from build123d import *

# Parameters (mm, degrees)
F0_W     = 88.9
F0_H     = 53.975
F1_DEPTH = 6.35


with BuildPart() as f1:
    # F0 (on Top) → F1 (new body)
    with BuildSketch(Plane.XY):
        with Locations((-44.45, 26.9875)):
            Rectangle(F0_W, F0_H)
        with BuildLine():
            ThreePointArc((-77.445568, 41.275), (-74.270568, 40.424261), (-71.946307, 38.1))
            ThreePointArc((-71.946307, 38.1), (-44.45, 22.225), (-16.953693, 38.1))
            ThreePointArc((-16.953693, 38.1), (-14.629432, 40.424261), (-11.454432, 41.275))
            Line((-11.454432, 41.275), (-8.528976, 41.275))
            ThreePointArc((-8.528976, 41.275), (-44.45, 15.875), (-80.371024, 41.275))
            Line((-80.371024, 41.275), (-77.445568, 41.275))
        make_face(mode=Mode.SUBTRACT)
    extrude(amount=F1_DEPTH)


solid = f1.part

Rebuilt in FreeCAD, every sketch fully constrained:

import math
import FreeCAD as App
import Part
import Sketcher
from FreeCAD import Vector
Q = App.Units.Quantity

doc = App.newDocument("Part")
body = doc.addObject("PartDesign::Body", "Body")

sketch1 = doc.addObject("Sketcher::SketchObject", "Sketch")
body.addObject(sketch1)
sketch1.AttachmentSupport = (doc.XY_Plane, [""])
sketch1.MapMode = "FlatFace"
sketch1.addGeometry([
    Part.LineSegment(Vector(-88.9, 53.975, 0), Vector(-88.9, 0, 0)),
    Part.LineSegment(Vector(-88.9, 0, 0), Vector(0, 0, 0)),
    Part.LineSegment(Vector(0, 0, 0), Vector(0, 53.975, 0)),
    Part.LineSegment(Vector(0, 53.975, 0), Vector(-88.9, 53.975, 0)),
    Part.LineSegment(Vector(-80.371024, 41.275, 0), Vector(-77.445568, 41.275, 0)),
    Part.ArcOfCircle(Part.Circle(Vector(-77.445569, 34.924999, 0), Vector(0, 0, 1), 6.350001), math.radians(30.000004), math.radians(89.999993)),
    Part.ArcOfCircle(Part.Circle(Vector(-44.45, 53.975001, 0), Vector(0, 0, 1), 31.750001), math.radians(-149.999999), math.radians(-30.000001)),
    Part.ArcOfCircle(Part.Circle(Vector(-11.454431, 34.924999, 0), Vector(0, 0, 1), 6.350001), math.radians(90.000007), math.radians(149.999996)),
    Part.LineSegment(Vector(-11.454432, 41.275, 0), Vector(-8.528976, 41.275, 0)),
    Part.ArcOfCircle(Part.Circle(Vector(-44.45, 53.974999, 0), Vector(0, 0, 1), 38.099999), math.radians(-160.52878), math.radians(-19.47122)),
], False)
sketch1.addConstraint([
    Sketcher.Constraint("Coincident", 0, 2, 1, 1),
    Sketcher.Constraint("Coincident", 1, 2, 2, 1),
    Sketcher.Constraint("Coincident", 2, 2, 3, 1),
    Sketcher.Constraint("Coincident", 3, 2, 0, 1),
    Sketcher.Constraint("Tangent", 4, 2, 5, 2),
    Sketcher.Constraint("Tangent", 5, 1, 6, 1),
    Sketcher.Constraint("Tangent", 6, 2, 7, 2),
    Sketcher.Constraint("Tangent", 7, 1, 8, 1),
    Sketcher.Constraint("Coincident", 8, 2, 9, 2),
    Sketcher.Constraint("Coincident", 9, 1, 4, 1),
    Sketcher.Constraint("Vertical", 0),
    Sketcher.Constraint("Horizontal", 1),
    Sketcher.Constraint("Vertical", 2),
    Sketcher.Constraint("Horizontal", 3),
    Sketcher.Constraint("Horizontal", 4),
    Sketcher.Constraint("Horizontal", 8),
    Sketcher.Constraint("Coincident", 1, 2, -1, 1),
    Sketcher.Constraint("Coincident", 9, 3, 6, 3),
    Sketcher.Constraint("Equal", 5, 7),
    Sketcher.Constraint("Horizontal", 5, 3, 7, 3),
    Sketcher.Constraint("Horizontal", 9, 3, 2, 2),
    Sketcher.Constraint("Radius", 9, Q("1.5 in")),
    Sketcher.Constraint("Radius", 5, Q("0.25 in")),
    Sketcher.Constraint("Radius", 6, Q("1.25 in")),
    Sketcher.Constraint("DistanceX", 1, 1, 1, 2, Q("3.5 in")),
    Sketcher.Constraint("DistanceY", -1, 1, 5, 1, Q("1.5 in")),
    Sketcher.Constraint("DistanceY", 4, 2, 3, 2, Q("0.5 in")),
    Sketcher.Constraint("DistanceX", 6, 3, -1, 1, Q("1.75 in")),
])
pad1 = doc.addObject("PartDesign::Pad", "Pad")
body.addObject(pad1)
pad1.Profile = sketch1
pad1.Length = Q("0.25 in")

doc.recompute()
